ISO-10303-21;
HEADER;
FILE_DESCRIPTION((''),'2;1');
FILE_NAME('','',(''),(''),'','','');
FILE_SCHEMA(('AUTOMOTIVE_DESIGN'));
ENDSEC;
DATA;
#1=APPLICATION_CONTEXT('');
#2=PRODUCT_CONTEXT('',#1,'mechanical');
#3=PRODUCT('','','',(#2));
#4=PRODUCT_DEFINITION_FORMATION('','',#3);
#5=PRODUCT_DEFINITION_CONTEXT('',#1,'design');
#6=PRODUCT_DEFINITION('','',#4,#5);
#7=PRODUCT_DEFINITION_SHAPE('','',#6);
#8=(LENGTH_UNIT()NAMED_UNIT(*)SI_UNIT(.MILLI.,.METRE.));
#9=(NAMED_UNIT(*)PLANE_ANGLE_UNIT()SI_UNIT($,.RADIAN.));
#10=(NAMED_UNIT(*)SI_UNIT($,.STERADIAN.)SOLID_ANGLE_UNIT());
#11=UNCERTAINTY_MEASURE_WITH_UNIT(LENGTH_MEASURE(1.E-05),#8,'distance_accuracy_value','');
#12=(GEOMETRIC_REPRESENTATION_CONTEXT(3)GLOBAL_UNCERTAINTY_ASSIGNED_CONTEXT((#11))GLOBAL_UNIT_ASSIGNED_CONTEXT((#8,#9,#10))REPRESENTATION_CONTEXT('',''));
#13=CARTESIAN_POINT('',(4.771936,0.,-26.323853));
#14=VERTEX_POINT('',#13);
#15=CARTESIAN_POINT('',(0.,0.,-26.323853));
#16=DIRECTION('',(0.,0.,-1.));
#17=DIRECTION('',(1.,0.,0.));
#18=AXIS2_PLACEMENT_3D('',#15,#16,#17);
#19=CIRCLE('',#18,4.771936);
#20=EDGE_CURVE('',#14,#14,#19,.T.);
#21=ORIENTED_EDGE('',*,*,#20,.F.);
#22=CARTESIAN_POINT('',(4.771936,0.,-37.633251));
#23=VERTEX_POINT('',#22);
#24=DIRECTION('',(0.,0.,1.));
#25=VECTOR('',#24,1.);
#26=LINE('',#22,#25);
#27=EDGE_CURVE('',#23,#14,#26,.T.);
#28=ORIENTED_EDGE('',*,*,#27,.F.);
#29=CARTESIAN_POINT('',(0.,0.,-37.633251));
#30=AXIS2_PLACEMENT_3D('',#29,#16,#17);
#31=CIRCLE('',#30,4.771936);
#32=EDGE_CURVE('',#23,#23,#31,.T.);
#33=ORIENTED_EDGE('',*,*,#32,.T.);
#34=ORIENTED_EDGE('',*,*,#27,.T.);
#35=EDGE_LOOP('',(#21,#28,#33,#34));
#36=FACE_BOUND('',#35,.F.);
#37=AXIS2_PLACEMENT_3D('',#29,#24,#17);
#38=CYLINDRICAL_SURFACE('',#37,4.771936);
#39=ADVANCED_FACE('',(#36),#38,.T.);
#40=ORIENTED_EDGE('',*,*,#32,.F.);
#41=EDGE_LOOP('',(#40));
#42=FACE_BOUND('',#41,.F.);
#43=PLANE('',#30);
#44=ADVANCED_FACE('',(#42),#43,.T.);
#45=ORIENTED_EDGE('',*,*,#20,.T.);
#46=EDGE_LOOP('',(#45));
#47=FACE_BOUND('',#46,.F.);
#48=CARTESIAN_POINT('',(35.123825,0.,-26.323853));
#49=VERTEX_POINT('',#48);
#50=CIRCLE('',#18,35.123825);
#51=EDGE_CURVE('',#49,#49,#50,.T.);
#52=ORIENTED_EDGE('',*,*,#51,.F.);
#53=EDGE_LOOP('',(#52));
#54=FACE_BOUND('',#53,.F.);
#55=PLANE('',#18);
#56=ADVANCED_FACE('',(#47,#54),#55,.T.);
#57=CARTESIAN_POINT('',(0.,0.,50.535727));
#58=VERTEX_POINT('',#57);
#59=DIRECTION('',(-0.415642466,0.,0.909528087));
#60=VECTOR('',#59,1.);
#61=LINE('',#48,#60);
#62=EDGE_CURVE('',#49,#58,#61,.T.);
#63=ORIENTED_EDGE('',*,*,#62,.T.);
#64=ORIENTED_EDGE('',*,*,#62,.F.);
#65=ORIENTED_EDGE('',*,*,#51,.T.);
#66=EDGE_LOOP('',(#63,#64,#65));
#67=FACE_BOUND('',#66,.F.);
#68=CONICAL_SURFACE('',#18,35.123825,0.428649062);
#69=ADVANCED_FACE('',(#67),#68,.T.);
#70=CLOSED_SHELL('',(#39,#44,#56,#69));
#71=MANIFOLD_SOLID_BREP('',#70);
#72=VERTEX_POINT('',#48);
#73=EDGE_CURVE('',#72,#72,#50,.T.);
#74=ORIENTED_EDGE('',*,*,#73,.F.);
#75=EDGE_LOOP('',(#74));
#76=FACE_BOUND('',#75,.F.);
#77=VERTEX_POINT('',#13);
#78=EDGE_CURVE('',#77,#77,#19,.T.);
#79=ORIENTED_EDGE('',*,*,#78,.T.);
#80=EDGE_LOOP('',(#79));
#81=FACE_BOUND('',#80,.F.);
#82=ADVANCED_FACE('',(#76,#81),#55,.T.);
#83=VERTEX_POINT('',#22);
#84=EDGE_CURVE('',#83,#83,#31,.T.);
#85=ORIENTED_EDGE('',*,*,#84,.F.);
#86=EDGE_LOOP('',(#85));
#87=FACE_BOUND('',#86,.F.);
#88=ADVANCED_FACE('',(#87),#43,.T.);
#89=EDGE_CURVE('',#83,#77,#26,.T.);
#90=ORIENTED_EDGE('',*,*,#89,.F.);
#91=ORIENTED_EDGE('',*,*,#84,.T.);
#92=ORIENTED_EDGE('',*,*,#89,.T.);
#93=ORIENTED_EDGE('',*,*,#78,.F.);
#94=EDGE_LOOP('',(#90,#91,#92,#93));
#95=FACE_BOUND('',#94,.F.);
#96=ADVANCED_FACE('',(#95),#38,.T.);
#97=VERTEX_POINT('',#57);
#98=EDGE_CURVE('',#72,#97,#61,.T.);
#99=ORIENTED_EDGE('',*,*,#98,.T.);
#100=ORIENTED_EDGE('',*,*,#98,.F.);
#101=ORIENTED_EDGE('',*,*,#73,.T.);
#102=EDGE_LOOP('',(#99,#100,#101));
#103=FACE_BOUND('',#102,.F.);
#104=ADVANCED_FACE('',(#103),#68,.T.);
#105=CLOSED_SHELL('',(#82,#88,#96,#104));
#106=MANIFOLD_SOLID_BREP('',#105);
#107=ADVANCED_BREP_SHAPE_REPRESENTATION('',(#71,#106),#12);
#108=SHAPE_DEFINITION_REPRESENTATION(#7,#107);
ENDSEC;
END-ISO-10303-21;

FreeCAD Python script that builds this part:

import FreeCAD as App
import Part
import Sketcher


def add_polygon(sketch, points):
    """Adds a closed chain of lines whose ends are joined by coincident constraints."""
    first, n = sketch.GeometryCount, len(points)
    for a, b in zip(points, points[1:] + points[:1]):
        sketch.addGeometry(Part.LineSegment(App.Vector(*a, 0), App.Vector(*b, 0)), False)
    for i in range(n):
        sketch.addConstraint(Sketcher.Constraint("Coincident", first + i, 2, first + (i + 1) % n, 1))

doc = App.newDocument("Part")
params = doc.addObject("Spreadsheet::Sheet", "Params")
for row, (alias, value) in enumerate([
    ("revolution_angle", "360 deg"),
    ("revolution2_angle", "360 deg"),
], start=1):
    params.set(f"A{row}", alias)
    params.set(f"B{row}", "=" + value)
    params.setAlias(f"B{row}", alias)

body = doc.addObject("PartDesign::Body", "Body")

# Sketch on XZ plane
sketch1 = doc.addObject("Sketcher::SketchObject", "Sketch")
body.addObject(sketch1)
sketch1.AttachmentSupport = (doc.XZ_Plane, [""])
sketch1.MapMode = "FlatFace"
add_polygon(sketch1, [(35.1, -26.3), (0, 50.5), (0, -37.6), (4.8, -37.6), (4.8, -26.3)])  # lines 0-4
sketch1.addConstraint([
    Sketcher.Constraint("Vertical", 1),
    Sketcher.Constraint("Horizontal", 2),
    Sketcher.Constraint("Vertical", 3),
    Sketcher.Constraint("Horizontal", 4),
    Sketcher.Constraint("PointOnObject", 0, 2, -2),
    Sketcher.Constraint("DistanceY", 3, 1, 3, 2, 11.309398),
    Sketcher.Constraint("Distance", 0, 84.5049),
    Sketcher.Constraint("DistanceX", 4, 1, 4, 2, 30.351889),
    Sketcher.Constraint("DistanceY", 1, 2, 1, 1, 88.168978),
    Sketcher.Constraint("DistanceY", 1, 2, -1, 1, 37.633251),
])
revolution = doc.addObject("PartDesign::Revolution", "Revolution")
body.addObject(revolution)
revolution.Profile = sketch1
revolution.ReferenceAxis = (sketch1, ["V_Axis"])
revolution.setExpression("Angle", "Params.revolution_angle")
body2 = doc.addObject("PartDesign::Body", "Body001")

# Sketch on XZ plane
sketch2 = doc.addObject("Sketcher::SketchObject", "Sketch001")
body2.addObject(sketch2)
sketch2.AttachmentSupport = (doc.getObject("XZ_Plane001"), [""])
sketch2.MapMode = "FlatFace"
add_polygon(sketch2, [(35.1, -26.3), (0, 50.5), (0, -37.6), (4.8, -37.6), (4.8, -26.3)])  # lines 0-4
sketch2.addConstraint([
    Sketcher.Constraint("Vertical", 1),
    Sketcher.Constraint("Horizontal", 2),
    Sketcher.Constraint("Vertical", 3),
    Sketcher.Constraint("Horizontal", 4),
    Sketcher.Constraint("PointOnObject", 0, 2, -2),
    Sketcher.Constraint("DistanceY", 3, 1, 3, 2, 11.309398),
    Sketcher.Constraint("Distance", 0, 84.5049),
    Sketcher.Constraint("DistanceX", 4, 1, 4, 2, 30.351889),
    Sketcher.Constraint("DistanceY", 1, 2, 1, 1, 88.168978),
    Sketcher.Constraint("DistanceY", 1, 2, -1, 1, 37.633251),
])
revolution2 = doc.addObject("PartDesign::Revolution", "Revolution001")
body2.addObject(revolution2)
revolution2.Profile = sketch2
revolution2.ReferenceAxis = (sketch2, ["V_Axis"])
revolution2.setExpression("Angle", "Params.revolution2_angle")

doc.recompute()
